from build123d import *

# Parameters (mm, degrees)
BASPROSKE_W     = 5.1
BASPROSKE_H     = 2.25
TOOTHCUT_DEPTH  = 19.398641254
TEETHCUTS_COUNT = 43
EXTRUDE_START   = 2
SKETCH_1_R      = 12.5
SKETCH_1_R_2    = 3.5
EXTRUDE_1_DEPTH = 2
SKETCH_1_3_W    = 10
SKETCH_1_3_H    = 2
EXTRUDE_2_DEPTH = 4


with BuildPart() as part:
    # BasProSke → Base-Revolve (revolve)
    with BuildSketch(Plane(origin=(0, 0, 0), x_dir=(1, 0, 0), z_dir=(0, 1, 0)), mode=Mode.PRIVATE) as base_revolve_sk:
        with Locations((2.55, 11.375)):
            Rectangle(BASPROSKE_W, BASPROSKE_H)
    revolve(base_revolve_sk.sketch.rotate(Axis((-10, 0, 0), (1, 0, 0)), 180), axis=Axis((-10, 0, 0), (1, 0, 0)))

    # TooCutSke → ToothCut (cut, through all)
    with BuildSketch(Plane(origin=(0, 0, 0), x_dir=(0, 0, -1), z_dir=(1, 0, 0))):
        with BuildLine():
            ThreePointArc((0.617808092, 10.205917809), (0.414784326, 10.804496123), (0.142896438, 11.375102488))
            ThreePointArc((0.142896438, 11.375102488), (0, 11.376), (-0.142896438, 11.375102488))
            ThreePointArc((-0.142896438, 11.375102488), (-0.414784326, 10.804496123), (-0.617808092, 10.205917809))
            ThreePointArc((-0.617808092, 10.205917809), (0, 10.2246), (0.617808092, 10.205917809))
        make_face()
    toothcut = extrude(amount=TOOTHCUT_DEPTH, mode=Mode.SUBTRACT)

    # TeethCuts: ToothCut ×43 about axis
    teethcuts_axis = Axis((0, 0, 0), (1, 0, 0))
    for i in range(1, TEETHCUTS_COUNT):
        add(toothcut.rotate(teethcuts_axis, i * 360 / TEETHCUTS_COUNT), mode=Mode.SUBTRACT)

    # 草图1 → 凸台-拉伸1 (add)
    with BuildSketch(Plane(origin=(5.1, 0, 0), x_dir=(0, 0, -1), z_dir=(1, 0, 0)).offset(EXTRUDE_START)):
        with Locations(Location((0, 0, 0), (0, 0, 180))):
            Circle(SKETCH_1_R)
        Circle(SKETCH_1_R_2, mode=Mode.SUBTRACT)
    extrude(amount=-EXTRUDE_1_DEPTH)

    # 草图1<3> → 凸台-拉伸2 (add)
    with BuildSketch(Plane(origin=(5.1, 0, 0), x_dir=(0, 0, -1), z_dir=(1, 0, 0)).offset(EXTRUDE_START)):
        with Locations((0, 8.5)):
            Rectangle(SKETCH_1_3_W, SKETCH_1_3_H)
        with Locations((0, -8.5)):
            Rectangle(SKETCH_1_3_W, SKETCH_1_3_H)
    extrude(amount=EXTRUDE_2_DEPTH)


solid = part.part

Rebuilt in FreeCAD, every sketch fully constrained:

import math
import FreeCAD as App
import Part
import Sketcher

doc = App.newDocument("Part")
body = doc.addObject("PartDesign::Body", "Body")

sketch1 = body.newObject("Sketcher::SketchObject", "Sketch")
sketch1.AttachmentSupport = (doc.getObject("XZ_Plane"), [""])
sketch1.MapMode = "FlatFace"
sketch1.addGeometry(Part.LineSegment(App.Vector(0, -12.5, 0), App.Vector(0, -10.2, 0)), False)
sketch1.addGeometry(Part.LineSegment(App.Vector(0, -10.2, 0), App.Vector(5.1, -10.2, 0)), False)
sketch1.addGeometry(Part.LineSegment(App.Vector(5.1, -10.2, 0), App.Vector(5.1, -12.5, 0)), False)
sketch1.addGeometry(Part.LineSegment(App.Vector(5.1, -12.5, 0), App.Vector(0, -12.5, 0)), False)
sketch1.addConstraint(Sketcher.Constraint("Coincident", 0, 2, 1, 1))
sketch1.addConstraint(Sketcher.Constraint("Coincident", 1, 2, 2, 1))
sketch1.addConstraint(Sketcher.Constraint("Coincident", 2, 2, 3, 1))
sketch1.addConstraint(Sketcher.Constraint("Coincident", 3, 2, 0, 1))
sketch1.addConstraint(Sketcher.Constraint("Vertical", 0))
sketch1.addConstraint(Sketcher.Constraint("Horizontal", 1))
sketch1.addConstraint(Sketcher.Constraint("Vertical", 2))
sketch1.addConstraint(Sketcher.Constraint("Horizontal", 3))
sketch1.addConstraint(Sketcher.Constraint("PointOnObject", 0, 2, -2))
sketch1.addConstraint(Sketcher.Constraint("DistanceX", 1, 1, 1, 2, 5.1))
sketch1.addConstraint(Sketcher.Constraint("DistanceY", 0, 1, 0, 2, 2.25))
sketch1.addConstraint(Sketcher.Constraint("DistanceY", 2, 2, -1, 1, 12.5))
revolution = body.newObject("PartDesign::Revolution", "Revolution")
revolution.Profile = sketch1
revolution.ReferenceAxis = (sketch1, ["H_Axis"])
revolution.Angle = 360

sketch2 = body.newObject("Sketcher::SketchObject", "Sketch001")
sketch2.AttachmentSupport = (doc.getObject("YZ_Plane"), [""])
sketch2.MapMode = "FlatFace"
sketch2.addGeometry(Part.ArcOfCircle(Part.Circle(App.Vector(8.78, 4.57, 0), App.Vector(0, 0, 1), 5.37), math.radians(-74.64), math.radians(-61.15)), False)
sketch2.addGeometry(Part.ArcOfCircle(Part.Circle(App.Vector(0, 0, 0), App.Vector(0, 0, 1), 11.38), math.radians(-0.72), math.radians(0.72)), False)
sketch2.addGeometry(Part.ArcOfCircle(Part.Circle(App.Vector(8.78, -4.57, 0), App.Vector(0, 0, 1), 5.37), math.radians(61.15), math.radians(74.64)), False)
sketch2.addGeometry(Part.ArcOfCircle(Part.Circle(App.Vector(0, 0, 0), App.Vector(0, 0, 1), 10.22), math.radians(-3.46), math.radians(3.46)), False)
sketch2.addConstraint(Sketcher.Constraint("Coincident", 0, 2, 1, 1))
sketch2.addConstraint(Sketcher.Constraint("Coincident", 1, 2, 2, 1))
sketch2.addConstraint(Sketcher.Constraint("Coincident", 2, 2, 3, 2))
sketch2.addConstraint(Sketcher.Constraint("Coincident", 3, 1, 0, 1))
sketch2.addConstraint(Sketcher.Constraint("Coincident", 1, 3, -1, 1))
sketch2.addConstraint(Sketcher.Constraint("Coincident", 3, 3, -1, 1))
sketch2.addConstraint(Sketcher.Constraint("Equal", 0, 2))
sketch2.addConstraint(Sketcher.Constraint("Symmetric", 0, 3, 2, 3, -1))
sketch2.addConstraint(Sketcher.Constraint("Radius", 0, 5.375))
sketch2.addConstraint(Sketcher.Constraint("Radius", 3, 10.2246))
sketch2.addConstraint(Sketcher.Constraint("Radius", 1, 11.376003))
sketch2.addConstraint(Sketcher.Constraint("DistanceY", -1, 1, 2, 2, 0.617808))
sketch2.addConstraint(Sketcher.Constraint("DistanceX", 2, 3, 0, 2, 2.593378))
pocket1 = body.newObject("PartDesign::Pocket", "Pocket")
pocket1.Profile = sketch2
pocket1.Type = "ThroughAll"
pocket1.Reversed = True
doc.recompute()

polarpattern = body.newObject("PartDesign::PolarPattern", "PolarPattern")
polarpattern.Originals = [pocket1]
polarpattern.Axis = (doc.getObject("X_Axis"), [""])
polarpattern.Angle = 360
polarpattern.Occurrences = 43
body.Tip = polarpattern

sketch3 = body.newObject("Sketcher::SketchObject", "Sketch002")
sketch3.AttachmentSupport = (doc.getObject("YZ_Plane"), [""])
sketch3.MapMode = "FlatFace"
sketch3.AttachmentOffset = App.Placement(App.Vector(0, 0, 7.1), App.Rotation())
sketch3.addGeometry(Part.Circle(App.Vector(0, 0, 0), App.Vector(0, 0, 1), 12.5), False)
sketch3.addGeometry(Part.Circle(App.Vector(0, 0, 0), App.Vector(0, 0, 1), 3.5), False)
sketch3.addConstraint(Sketcher.Constraint("Coincident", 0, 3, -1, 1))
sketch3.addConstraint(Sketcher.Constraint("Coincident", 1, 3, -1, 1))
sketch3.addConstraint(Sketcher.Constraint("Diameter", 0, 25.0))
sketch3.addConstraint(Sketcher.Constraint("Diameter", 1, 7.0))
pad1 = body.newObject("PartDesign::Pad", "Pad")
pad1.Profile = sketch3
pad1.Length = 2
pad1.Reversed = True

sketch4 = body.newObject("Sketcher::SketchObject", "Sketch003")
sketch4.AttachmentSupport = (doc.getObject("YZ_Plane"), [""])
sketch4.MapMode = "FlatFace"
sketch4.AttachmentOffset = App.Placement(App.Vector(0, 0, 7.1), App.Rotation())
sketch4.addGeometry(Part.LineSegment(App.Vector(9.5, 5, 0), App.Vector(7.5, 5, 0)), False)
sketch4.addGeometry(Part.LineSegment(App.Vector(7.5, 5, 0), App.Vector(7.5, -5, 0)), False)
sketch4.addGeometry(Part.LineSegment(App.Vector(7.5, -5, 0), App.Vector(9.5, -5, 0)), False)
sketch4.addGeometry(Part.LineSegment(App.Vector(9.5, -5, 0), App.Vector(9.5, 5, 0)), False)
sketch4.addGeometry(Part.LineSegment(App.Vector(-7.5, 5, 0), App.Vector(-9.5, 5, 0)), False)
sketch4.addGeometry(Part.LineSegment(App.Vector(-9.5, 5, 0), App.Vector(-9.5, -5, 0)), False)
sketch4.addGeometry(Part.LineSegment(App.Vector(-9.5, -5, 0), App.Vector(-7.5, -5, 0)), False)
sketch4.addGeometry(Part.LineSegment(App.Vector(-7.5, -5, 0), App.Vector(-7.5, 5, 0)), False)
sketch4.addConstraint(Sketcher.Constraint("Coincident", 0, 2, 1, 1))
sketch4.addConstraint(Sketcher.Constraint("Coincident", 1, 2, 2, 1))
sketch4.addConstraint(Sketcher.Constraint("Coincident", 2, 2, 3, 1))
sketch4.addConstraint(Sketcher.Constraint("Coincident", 3, 2, 0, 1))
sketch4.addConstraint(Sketcher.Constraint("Coincident", 4, 2, 5, 1))
sketch4.addConstraint(Sketcher.Constraint("Coincident", 5, 2, 6, 1))
sketch4.addConstraint(Sketcher.Constraint("Coincident", 6, 2, 7, 1))
sketch4.addConstraint(Sketcher.Constraint("Coincident", 7, 2, 4, 1))
sketch4.addConstraint(Sketcher.Constraint("Horizontal", 0))
sketch4.addConstraint(Sketcher.Constraint("Vertical", 1))
sketch4.addConstraint(Sketcher.Constraint("Horizontal", 2))
sketch4.addConstraint(Sketcher.Constraint("Vertical", 3))
sketch4.addConstraint(Sketcher.Constraint("Horizontal", 4))
sketch4.addConstraint(Sketcher.Constraint("Vertical", 5))
sketch4.addConstraint(Sketcher.Constraint("Horizontal", 6))
sketch4.addConstraint(Sketcher.Constraint("Vertical", 7))
sketch4.addConstraint(Sketcher.Constraint("Symmetric", 2, 2, 4, 2, -1, 1))
sketch4.addConstraint(Sketcher.Constraint("Symmetric", 0, 2, 6, 2, -1, 1))
sketch4.addConstraint(Sketcher.Constraint("Horizontal", 3, 2, 4, 2))
sketch4.addConstraint(Sketcher.Constraint("DistanceX", 0, 2, 0, 1, 2.0))
sketch4.addConstraint(Sketcher.Constraint("DistanceY", 1, 2, 1, 1, 10.0))
sketch4.addConstraint(Sketcher.Constraint("DistanceX", 4, 2, 0, 2, 17.0))
pad2 = body.newObject("PartDesign::Pad", "Pad001")
pad2.Profile = sketch4
pad2.Length = 4

doc.recompute()
